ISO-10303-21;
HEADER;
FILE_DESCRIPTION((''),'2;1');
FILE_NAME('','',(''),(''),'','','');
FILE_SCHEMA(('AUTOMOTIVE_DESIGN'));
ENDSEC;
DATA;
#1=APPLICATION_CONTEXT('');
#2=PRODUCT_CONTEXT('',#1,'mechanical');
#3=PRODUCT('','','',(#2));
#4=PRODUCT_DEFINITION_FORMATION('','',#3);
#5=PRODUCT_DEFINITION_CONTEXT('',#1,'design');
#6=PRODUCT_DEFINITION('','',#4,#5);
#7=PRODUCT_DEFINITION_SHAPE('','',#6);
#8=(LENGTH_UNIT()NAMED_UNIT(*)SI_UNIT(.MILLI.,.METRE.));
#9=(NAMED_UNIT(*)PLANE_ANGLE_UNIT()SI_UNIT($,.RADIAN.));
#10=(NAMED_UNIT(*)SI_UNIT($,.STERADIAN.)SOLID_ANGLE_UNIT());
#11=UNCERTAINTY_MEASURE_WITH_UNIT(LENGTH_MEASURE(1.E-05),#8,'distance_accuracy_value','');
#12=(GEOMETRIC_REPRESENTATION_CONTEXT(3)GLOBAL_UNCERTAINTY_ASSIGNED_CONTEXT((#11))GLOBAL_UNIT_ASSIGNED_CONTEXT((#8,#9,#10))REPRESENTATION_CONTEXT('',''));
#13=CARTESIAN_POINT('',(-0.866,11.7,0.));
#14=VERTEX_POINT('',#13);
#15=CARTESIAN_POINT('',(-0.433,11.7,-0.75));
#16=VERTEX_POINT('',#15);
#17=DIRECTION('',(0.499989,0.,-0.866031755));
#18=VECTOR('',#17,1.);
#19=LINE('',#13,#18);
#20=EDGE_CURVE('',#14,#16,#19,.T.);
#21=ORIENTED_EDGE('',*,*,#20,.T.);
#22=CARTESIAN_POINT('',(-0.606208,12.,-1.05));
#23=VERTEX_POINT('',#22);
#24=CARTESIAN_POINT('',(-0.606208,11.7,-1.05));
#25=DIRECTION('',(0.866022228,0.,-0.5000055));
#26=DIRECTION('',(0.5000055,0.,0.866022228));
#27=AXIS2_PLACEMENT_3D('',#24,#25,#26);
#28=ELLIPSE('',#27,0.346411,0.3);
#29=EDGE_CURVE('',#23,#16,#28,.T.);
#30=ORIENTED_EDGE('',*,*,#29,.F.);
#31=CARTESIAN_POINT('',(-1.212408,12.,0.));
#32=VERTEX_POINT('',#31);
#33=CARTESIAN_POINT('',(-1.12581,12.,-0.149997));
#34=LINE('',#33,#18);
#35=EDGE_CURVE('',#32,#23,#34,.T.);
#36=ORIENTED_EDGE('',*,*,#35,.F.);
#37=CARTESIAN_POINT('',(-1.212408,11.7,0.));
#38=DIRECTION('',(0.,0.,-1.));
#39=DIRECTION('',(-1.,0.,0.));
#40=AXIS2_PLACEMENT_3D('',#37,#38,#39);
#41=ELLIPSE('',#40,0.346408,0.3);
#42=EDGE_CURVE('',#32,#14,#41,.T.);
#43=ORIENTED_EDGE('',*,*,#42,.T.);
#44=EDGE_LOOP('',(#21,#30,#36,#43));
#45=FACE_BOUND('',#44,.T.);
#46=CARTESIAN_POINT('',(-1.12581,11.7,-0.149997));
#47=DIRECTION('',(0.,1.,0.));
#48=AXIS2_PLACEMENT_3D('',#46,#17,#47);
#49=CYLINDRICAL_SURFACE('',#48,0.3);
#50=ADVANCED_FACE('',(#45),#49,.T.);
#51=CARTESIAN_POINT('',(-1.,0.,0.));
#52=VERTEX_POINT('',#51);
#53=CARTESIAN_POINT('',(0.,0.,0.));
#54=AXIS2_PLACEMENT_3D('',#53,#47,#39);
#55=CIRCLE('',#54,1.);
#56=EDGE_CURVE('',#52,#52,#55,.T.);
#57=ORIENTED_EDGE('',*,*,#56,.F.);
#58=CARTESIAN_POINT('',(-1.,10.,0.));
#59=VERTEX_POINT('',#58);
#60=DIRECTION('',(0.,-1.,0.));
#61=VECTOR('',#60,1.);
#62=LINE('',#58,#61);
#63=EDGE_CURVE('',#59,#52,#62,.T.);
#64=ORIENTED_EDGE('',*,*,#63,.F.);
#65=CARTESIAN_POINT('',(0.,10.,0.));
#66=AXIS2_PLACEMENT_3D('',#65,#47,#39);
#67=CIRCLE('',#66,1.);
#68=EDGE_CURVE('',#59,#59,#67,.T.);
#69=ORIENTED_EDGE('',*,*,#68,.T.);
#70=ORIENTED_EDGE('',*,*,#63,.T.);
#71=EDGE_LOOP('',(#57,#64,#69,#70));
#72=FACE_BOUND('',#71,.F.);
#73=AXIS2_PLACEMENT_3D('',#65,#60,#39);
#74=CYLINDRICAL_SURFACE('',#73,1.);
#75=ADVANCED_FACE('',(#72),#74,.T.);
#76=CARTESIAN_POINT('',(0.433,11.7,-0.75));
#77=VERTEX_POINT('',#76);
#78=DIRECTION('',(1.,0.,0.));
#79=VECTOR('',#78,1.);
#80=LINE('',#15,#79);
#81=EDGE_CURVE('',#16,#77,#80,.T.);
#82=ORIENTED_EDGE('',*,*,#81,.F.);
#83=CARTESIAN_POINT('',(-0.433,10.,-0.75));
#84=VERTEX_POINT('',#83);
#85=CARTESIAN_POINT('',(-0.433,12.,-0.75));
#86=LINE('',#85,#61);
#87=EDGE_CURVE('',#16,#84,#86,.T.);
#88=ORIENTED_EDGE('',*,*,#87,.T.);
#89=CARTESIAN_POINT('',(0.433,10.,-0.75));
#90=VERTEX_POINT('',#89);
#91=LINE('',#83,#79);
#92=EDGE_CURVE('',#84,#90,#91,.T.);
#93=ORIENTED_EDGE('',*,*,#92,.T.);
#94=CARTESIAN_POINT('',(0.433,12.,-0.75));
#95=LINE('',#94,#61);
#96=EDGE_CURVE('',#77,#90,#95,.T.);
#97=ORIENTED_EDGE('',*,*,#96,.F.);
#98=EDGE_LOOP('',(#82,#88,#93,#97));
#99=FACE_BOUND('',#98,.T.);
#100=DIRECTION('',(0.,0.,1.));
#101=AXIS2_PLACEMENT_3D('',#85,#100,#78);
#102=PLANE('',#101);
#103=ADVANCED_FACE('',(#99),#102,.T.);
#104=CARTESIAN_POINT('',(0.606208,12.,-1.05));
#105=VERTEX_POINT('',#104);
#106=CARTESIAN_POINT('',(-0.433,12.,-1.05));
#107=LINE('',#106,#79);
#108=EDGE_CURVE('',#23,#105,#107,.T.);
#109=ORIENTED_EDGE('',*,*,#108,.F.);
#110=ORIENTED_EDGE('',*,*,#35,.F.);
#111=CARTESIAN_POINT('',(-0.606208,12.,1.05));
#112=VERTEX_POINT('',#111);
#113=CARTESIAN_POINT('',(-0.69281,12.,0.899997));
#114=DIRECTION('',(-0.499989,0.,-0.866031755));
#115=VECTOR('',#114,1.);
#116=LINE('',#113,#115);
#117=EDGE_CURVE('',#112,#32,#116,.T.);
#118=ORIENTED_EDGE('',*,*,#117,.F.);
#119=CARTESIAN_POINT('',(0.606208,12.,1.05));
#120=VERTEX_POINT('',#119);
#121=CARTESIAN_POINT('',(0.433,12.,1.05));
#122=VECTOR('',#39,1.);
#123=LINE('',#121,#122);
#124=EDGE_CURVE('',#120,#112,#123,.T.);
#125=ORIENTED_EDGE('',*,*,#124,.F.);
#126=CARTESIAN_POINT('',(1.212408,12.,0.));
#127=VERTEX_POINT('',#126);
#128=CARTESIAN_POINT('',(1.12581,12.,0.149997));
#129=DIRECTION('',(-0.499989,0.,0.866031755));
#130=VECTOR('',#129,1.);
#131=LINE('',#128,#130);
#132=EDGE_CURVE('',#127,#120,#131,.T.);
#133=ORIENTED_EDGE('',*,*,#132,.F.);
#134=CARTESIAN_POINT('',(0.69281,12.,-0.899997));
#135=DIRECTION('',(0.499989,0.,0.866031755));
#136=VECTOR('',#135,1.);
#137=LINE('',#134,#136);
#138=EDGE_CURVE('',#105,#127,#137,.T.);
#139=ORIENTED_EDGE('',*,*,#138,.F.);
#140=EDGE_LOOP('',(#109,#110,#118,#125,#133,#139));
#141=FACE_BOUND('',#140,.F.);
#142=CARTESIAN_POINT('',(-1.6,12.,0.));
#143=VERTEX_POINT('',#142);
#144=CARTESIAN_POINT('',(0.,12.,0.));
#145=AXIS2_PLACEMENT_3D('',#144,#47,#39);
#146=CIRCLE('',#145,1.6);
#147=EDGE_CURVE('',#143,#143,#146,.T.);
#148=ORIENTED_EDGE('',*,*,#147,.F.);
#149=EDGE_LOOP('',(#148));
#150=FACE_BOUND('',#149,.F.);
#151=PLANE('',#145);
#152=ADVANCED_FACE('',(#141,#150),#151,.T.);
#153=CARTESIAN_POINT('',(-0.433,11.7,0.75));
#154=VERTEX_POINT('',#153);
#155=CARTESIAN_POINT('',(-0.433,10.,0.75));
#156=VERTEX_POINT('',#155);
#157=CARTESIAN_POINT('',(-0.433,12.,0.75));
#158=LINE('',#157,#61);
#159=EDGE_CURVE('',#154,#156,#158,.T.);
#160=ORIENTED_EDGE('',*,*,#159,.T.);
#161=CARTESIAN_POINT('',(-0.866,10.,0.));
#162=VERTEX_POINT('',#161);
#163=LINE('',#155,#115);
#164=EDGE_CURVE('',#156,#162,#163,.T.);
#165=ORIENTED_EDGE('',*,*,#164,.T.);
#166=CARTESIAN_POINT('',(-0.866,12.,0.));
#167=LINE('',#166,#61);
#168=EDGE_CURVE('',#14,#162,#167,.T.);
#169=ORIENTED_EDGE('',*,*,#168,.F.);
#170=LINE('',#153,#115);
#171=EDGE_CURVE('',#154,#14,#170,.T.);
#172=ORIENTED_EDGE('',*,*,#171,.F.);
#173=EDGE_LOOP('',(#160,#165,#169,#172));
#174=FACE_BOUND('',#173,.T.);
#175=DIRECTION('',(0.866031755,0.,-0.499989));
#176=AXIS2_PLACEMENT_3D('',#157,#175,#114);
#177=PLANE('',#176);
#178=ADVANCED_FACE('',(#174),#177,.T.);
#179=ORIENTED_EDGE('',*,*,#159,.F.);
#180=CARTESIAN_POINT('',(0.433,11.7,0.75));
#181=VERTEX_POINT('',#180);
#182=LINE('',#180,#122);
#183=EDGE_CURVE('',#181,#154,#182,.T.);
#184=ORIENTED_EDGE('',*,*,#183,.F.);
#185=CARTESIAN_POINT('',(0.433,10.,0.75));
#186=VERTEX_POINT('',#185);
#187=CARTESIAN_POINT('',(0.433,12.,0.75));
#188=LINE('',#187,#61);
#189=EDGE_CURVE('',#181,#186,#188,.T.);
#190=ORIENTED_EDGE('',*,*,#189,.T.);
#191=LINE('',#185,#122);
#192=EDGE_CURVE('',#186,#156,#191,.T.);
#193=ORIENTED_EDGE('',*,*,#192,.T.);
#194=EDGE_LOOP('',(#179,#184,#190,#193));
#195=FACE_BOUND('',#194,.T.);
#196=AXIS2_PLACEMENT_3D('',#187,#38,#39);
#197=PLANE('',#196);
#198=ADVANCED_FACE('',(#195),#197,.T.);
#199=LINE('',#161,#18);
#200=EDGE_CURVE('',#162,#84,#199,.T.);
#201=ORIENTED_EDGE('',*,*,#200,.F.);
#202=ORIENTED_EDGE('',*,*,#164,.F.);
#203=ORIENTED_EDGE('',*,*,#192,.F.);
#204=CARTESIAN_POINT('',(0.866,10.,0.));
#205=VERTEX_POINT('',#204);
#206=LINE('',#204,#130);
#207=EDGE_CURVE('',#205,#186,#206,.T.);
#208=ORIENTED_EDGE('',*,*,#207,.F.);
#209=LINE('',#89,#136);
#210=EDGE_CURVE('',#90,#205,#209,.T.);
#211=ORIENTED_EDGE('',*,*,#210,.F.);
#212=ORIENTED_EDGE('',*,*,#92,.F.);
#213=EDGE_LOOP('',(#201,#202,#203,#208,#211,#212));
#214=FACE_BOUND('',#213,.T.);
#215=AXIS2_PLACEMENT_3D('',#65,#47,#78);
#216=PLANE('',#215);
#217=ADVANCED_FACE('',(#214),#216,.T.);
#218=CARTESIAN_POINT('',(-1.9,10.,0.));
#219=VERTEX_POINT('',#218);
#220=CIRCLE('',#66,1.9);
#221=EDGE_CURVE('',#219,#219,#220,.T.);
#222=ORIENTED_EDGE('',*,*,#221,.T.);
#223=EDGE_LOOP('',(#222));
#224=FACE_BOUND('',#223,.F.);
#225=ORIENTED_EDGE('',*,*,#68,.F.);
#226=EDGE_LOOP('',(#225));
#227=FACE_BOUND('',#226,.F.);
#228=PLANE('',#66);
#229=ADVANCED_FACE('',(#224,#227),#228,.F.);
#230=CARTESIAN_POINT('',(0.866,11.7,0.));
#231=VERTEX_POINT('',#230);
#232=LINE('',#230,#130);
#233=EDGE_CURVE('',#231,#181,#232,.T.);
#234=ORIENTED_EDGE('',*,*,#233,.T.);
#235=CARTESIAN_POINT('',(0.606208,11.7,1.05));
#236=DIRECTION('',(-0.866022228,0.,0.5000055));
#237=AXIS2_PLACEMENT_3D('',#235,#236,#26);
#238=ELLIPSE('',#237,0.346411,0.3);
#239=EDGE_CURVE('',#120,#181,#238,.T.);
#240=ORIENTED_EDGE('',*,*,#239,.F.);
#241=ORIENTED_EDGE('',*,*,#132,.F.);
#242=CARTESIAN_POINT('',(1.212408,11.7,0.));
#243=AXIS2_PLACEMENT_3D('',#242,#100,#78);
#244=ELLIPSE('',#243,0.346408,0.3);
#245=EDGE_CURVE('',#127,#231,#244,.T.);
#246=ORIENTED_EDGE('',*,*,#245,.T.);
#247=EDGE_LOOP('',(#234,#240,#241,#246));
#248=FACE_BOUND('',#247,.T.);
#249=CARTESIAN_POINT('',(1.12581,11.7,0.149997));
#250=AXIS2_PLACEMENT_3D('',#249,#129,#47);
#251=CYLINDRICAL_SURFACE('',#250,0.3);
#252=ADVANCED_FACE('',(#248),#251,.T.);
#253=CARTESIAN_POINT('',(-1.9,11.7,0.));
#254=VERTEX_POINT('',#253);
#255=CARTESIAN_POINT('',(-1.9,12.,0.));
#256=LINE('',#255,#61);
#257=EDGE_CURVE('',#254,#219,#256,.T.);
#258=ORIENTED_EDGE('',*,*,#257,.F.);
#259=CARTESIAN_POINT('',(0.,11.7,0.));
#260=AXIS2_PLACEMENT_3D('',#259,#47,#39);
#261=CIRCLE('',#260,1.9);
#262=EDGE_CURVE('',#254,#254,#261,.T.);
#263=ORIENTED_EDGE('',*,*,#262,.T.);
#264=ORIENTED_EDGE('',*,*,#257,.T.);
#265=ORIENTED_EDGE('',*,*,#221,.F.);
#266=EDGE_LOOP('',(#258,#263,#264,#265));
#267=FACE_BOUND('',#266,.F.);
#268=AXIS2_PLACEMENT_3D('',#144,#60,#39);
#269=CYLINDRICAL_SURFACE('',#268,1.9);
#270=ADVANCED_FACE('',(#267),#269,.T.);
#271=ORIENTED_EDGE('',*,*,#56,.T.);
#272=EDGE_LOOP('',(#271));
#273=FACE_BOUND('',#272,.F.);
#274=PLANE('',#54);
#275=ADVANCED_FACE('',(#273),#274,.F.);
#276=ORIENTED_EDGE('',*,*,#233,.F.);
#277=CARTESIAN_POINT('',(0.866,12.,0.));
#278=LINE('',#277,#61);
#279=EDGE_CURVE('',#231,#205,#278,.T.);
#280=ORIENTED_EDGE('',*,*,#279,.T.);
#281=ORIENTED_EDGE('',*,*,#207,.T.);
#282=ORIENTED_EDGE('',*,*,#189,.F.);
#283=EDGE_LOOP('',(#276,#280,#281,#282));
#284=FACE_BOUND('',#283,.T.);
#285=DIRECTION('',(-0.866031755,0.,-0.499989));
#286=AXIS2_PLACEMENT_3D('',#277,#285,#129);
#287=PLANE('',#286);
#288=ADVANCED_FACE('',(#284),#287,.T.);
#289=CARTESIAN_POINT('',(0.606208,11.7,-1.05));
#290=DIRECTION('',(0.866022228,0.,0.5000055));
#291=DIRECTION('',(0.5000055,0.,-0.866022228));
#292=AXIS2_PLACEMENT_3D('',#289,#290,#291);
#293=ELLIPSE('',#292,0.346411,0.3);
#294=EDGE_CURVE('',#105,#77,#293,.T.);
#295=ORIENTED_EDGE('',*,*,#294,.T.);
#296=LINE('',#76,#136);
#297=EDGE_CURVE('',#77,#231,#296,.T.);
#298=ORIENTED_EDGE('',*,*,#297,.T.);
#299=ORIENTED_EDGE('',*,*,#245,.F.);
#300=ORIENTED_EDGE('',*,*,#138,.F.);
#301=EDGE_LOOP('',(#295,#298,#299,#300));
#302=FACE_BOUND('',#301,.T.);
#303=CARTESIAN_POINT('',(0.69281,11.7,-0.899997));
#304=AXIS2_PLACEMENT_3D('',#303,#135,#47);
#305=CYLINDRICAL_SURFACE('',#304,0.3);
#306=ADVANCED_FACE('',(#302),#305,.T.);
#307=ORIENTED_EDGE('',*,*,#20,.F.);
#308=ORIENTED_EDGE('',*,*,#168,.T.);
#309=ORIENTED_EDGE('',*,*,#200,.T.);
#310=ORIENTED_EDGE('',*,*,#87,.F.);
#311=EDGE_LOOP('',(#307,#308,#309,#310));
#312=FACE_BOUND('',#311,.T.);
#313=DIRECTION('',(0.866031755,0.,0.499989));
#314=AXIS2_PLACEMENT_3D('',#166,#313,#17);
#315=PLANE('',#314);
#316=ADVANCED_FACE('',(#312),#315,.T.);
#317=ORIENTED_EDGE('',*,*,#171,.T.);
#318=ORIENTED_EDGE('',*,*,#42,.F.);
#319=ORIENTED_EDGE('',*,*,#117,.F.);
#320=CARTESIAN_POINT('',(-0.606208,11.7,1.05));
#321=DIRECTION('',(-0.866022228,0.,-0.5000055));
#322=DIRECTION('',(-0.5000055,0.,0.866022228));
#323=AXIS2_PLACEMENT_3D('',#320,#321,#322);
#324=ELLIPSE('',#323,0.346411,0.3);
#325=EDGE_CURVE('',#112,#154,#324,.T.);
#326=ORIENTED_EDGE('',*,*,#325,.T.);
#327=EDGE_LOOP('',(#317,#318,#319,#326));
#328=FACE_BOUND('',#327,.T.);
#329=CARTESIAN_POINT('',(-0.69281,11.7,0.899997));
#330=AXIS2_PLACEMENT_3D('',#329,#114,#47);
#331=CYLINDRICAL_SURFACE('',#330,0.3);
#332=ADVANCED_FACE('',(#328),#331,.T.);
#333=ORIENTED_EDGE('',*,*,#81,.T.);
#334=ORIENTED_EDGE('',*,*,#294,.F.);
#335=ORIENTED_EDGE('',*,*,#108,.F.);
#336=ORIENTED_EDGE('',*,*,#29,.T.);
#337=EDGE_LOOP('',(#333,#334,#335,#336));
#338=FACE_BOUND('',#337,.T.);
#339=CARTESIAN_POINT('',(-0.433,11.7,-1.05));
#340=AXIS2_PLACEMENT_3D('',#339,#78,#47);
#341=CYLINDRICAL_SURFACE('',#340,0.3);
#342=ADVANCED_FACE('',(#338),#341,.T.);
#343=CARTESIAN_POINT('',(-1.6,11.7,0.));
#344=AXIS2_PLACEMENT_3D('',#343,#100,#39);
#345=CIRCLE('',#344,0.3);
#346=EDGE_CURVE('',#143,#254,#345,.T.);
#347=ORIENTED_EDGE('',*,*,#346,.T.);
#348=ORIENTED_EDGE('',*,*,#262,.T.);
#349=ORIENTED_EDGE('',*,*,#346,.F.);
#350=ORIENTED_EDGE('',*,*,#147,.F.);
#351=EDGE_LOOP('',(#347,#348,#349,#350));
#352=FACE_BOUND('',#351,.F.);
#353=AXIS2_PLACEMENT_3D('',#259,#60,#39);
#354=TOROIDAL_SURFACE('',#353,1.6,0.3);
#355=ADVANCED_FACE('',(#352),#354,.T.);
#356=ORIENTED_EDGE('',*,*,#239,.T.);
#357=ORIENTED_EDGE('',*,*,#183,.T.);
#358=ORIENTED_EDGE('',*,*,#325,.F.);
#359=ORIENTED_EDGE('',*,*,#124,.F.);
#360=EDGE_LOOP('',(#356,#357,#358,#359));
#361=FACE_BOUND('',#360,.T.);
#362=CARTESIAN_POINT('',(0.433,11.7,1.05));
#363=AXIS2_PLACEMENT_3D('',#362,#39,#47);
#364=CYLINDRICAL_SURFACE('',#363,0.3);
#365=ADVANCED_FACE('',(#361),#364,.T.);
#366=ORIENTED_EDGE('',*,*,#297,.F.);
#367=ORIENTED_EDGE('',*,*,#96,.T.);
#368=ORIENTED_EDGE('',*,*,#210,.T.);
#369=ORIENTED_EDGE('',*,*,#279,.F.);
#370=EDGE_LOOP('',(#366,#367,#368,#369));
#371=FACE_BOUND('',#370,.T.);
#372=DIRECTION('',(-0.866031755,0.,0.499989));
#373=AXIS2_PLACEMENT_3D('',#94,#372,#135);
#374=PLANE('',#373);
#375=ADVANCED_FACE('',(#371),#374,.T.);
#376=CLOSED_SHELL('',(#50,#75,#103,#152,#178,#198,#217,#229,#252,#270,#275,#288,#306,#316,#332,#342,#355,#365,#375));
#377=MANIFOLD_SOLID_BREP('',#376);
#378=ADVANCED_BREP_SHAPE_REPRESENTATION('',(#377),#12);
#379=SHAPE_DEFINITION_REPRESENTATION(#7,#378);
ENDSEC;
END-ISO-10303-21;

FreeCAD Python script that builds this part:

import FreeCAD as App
import Part
import Sketcher
Q = App.Units.Quantity


def edges_at(feature, points):
    """Names of the edges that pass closest to the given points."""
    edges = feature.Shape.Edges
    near = lambda p: min(range(len(edges)), key=lambda i: edges[i].distToShape(Part.Vertex(*p))[0])
    return sorted({f"Edge{near(p) + 1}" for p in points})

doc = App.newDocument("Part")
body = doc.addObject("PartDesign::Body", "Body")

# Sketch on XY plane
sketch1 = body.newObject("Sketcher::SketchObject", "Sketch")
sketch1.AttachmentSupport = (doc.getObject("XY_Plane"), [""])
sketch1.MapMode = "FlatFace"
sketch1.addGeometry([
    Part.LineSegment(App.Vector(-1, 0, 0), App.Vector(0, 0, 0)),  # 0
    Part.LineSegment(App.Vector(0, 0, 0), App.Vector(0, 12, 0)),  # 1
    Part.LineSegment(App.Vector(0, 12, 0), App.Vector(-1.9, 12, 0)),  # 2
    Part.LineSegment(App.Vector(-1.9, 12, 0), App.Vector(-1.9, 10, 0)),  # 3
    Part.LineSegment(App.Vector(-1.9, 10, 0), App.Vector(-1, 10, 0)),  # 4
    Part.LineSegment(App.Vector(-1, 10, 0), App.Vector(-1, 0, 0)),  # 5
], False)
sketch1.addConstraint([
    Sketcher.Constraint("Coincident", 0, 2, 1, 1),
    Sketcher.Constraint("Coincident", 1, 2, 2, 1),
    Sketcher.Constraint("Coincident", 2, 2, 3, 1),
    Sketcher.Constraint("Coincident", 3, 2, 4, 1),
    Sketcher.Constraint("Coincident", 4, 2, 5, 1),
    Sketcher.Constraint("Coincident", 5, 2, 0, 1),
    Sketcher.Constraint("Horizontal", 0),
    Sketcher.Constraint("Vertical", 1),
    Sketcher.Constraint("Horizontal", 2),
    Sketcher.Constraint("Vertical", 3),
    Sketcher.Constraint("Horizontal", 4),
    Sketcher.Constraint("Vertical", 5),
    Sketcher.Constraint("Coincident", 0, 2, -1, 1),
    Sketcher.Constraint("DistanceX", 0, 1, 0, 2, Q("1 mm")),
    Sketcher.Constraint("DistanceY", 3, 2, 3, 1, Q("2 mm")),
    Sketcher.Constraint("DistanceY", 5, 2, 5, 1, Q("10 mm")),
    Sketcher.Constraint("DistanceX", 2, 2, 2, 1, Q("1.9 mm")),
])
revolution = body.newObject("PartDesign::Revolution", "Revolution")
revolution.Profile = sketch1
revolution.ReferenceAxis = (sketch1, ["V_Axis"])
revolution.Angle = 360

# Sketch on XZ plane
sketch2 = body.newObject("Sketcher::SketchObject", "Sketch001")
sketch2.AttachmentSupport = (doc.getObject("XZ_Plane"), [""])
sketch2.MapMode = "FlatFace"
sketch2.AttachmentOffset = App.Placement(App.Vector(0, 0, -12), App.Rotation())
sketch2.addGeometry([
    Part.LineSegment(App.Vector(-0.866, 0, 0), App.Vector(-0.433, 0.75, 0)),  # 0
    Part.LineSegment(App.Vector(-0.433, 0.75, 0), App.Vector(0.433, 0.75, 0)),  # 1
    Part.LineSegment(App.Vector(0.433, 0.75, 0), App.Vector(0.866, 0, 0)),  # 2
    Part.LineSegment(App.Vector(0.866, 0, 0), App.Vector(0.433, -0.75, 0)),  # 3
    Part.LineSegment(App.Vector(0.433, -0.75, 0), App.Vector(-0.433, -0.75, 0)),  # 4
    Part.LineSegment(App.Vector(-0.433, -0.75, 0), App.Vector(-0.866, 0, 0)),  # 5
], False)
sketch2.addConstraint([
    Sketcher.Constraint("Coincident", 0, 2, 1, 1),
    Sketcher.Constraint("Coincident", 1, 2, 2, 1),
    Sketcher.Constraint("Coincident", 2, 2, 3, 1),
    Sketcher.Constraint("Coincident", 3, 2, 4, 1),
    Sketcher.Constraint("Coincident", 4, 2, 5, 1),
    Sketcher.Constraint("Coincident", 5, 2, 0, 1),
    Sketcher.Constraint("Horizontal", 1),
    Sketcher.Constraint("Horizontal", 4),
    Sketcher.Constraint("Symmetric", 0, 2, 3, 2, -1, 1),
    Sketcher.Constraint("Symmetric", 2, 2, 5, 2, -1, 1),
    Sketcher.Constraint("PointOnObject", 2, 2, -1),
    Sketcher.Constraint("Parallel", 2, 5),
    Sketcher.Constraint("Vertical", 1, 2, 3, 2),
    Sketcher.Constraint("DistanceY", 3, 2, 1, 2, Q("1.5 mm")),
    Sketcher.Constraint("Angle", 0, Q("60.0007 deg")),
    Sketcher.Constraint("DistanceX", 1, 1, 1, 2, Q("0.866 mm")),
])
pocket1 = body.newObject("PartDesign::Pocket", "Pocket")
pocket1.Profile = sketch2
pocket1.Length = 2
pocket1.Reversed = True
doc.recompute()

fillet = body.newObject("PartDesign::Fillet", "Fillet")
fillet.Base = (pocket1, edges_at(pocket1, [
    (0, 12, -0.75),
    (0.649, 12, -0.375),
    (0.649, 12, 0.375),
    (0, 12, 0.75),
    (-0.649, 12, 0.375),
    (-0.649, 12, -0.375),
]))
fillet.Radius = 0.3
doc.recompute()

fillet2 = body.newObject("PartDesign::Fillet", "Fillet001")
fillet2.Base = (fillet, edges_at(fillet, [(1.9, 12, 0)]))
fillet2.Radius = 0.3

doc.recompute()
